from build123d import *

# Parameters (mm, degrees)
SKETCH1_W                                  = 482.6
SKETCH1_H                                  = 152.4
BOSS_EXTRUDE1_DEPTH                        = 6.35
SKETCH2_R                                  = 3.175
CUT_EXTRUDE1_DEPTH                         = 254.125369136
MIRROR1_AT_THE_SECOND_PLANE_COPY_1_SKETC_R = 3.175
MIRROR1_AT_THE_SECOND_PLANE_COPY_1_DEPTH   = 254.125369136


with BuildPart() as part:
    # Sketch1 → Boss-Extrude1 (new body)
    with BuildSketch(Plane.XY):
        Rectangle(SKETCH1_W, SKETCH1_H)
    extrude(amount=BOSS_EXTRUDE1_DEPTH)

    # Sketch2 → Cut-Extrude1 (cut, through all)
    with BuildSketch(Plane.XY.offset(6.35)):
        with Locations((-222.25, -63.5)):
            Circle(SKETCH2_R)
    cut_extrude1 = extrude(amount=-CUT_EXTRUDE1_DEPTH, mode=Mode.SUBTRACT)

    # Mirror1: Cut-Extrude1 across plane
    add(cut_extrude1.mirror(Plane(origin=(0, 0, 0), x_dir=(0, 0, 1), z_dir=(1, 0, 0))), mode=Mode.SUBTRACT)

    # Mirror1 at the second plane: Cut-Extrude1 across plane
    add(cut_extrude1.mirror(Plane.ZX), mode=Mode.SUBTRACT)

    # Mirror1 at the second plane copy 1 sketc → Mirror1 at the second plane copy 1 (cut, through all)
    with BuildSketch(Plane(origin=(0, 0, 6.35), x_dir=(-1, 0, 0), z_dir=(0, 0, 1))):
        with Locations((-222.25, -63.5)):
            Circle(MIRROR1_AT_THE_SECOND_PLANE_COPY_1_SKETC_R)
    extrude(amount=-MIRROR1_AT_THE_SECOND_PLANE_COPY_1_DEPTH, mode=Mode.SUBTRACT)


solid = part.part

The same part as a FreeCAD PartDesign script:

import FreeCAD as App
import Part
import Sketcher

V = App.Vector
Q = App.Units.Quantity


def add_polygon(sketch, points):
    """Adds a closed chain of lines whose ends are joined by coincident constraints."""
    first, n = sketch.GeometryCount, len(points)
    for a, b in zip(points, points[1:] + points[:1]):
        sketch.addGeometry(Part.LineSegment(App.Vector(*a, 0), App.Vector(*b, 0)), False)
    for i in range(n):
        sketch.addConstraint(Sketcher.Constraint("Coincident", first + i, 2, first + (i + 1) % n, 1))

doc = App.newDocument("Part")
body = doc.addObject("PartDesign::Body", "Body")

sketch1 = body.newObject("Sketcher::SketchObject", "Sketch")
sketch1.AttachmentSupport = (doc.getObject("XY_Plane"), [""])
sketch1.MapMode = "FlatFace"
add_polygon(sketch1, [(-241, 76), (-241, -76), (241, -76), (241, 76)])
sketch1.addConstraint(Sketcher.Constraint("Vertical", 0))
sketch1.addConstraint(Sketcher.Constraint("Horizontal", 1))
sketch1.addConstraint(Sketcher.Constraint("Vertical", 2))
sketch1.addConstraint(Sketcher.Constraint("Horizontal", 3))
sketch1.addConstraint(Sketcher.Constraint("Symmetric", 0, 2, 2, 2, -1, 1))
sketch1.addConstraint(Sketcher.Constraint("DistanceX", 1, 1, 1, 2, Q("19 in")))
sketch1.addConstraint(Sketcher.Constraint("DistanceY", 0, 2, 0, 1, Q("6 in")))
pad1 = body.newObject("PartDesign::Pad", "Pad")
pad1.Profile = sketch1
pad1.Length = Q("0.25 in")

sketch2 = body.newObject("Sketcher::SketchObject", "Sketch001")
sketch2.AttachmentSupport = (doc.getObject("XY_Plane"), [""])
sketch2.MapMode = "FlatFace"
sketch2.AttachmentOffset = App.Placement(V(0, 0, 0.25 * 25.4), App.Rotation())
sketch2.addGeometry(Part.Circle(V(-222.2, -63.5, 0), V(0, 0, 1), 3.2), False)
sketch2.addConstraint(Sketcher.Constraint("Diameter", 0, Q("0.25 in")))
sketch2.addConstraint(Sketcher.Constraint("DistanceY", 0, 3, -1, 1, Q("2.5 in")))
sketch2.addConstraint(Sketcher.Constraint("DistanceX", 0, 3, -1, 1, Q("8.75 in")))
pocket1 = body.newObject("PartDesign::Pocket", "Pocket")
pocket1.Profile = sketch2
pocket1.Type = "ThroughAll"
doc.recompute()

mirrored = body.newObject("PartDesign::Mirrored", "Mirrored")
mirrored.Originals = [pocket1]
mirrored.MirrorPlane = (doc.getObject("YZ_Plane"), [""])
body.Tip = mirrored
doc.recompute()

mirrored2 = body.newObject("PartDesign::Mirrored", "Mirrored001")
mirrored2.Originals = [pocket1]
mirrored2.MirrorPlane = (doc.getObject("XZ_Plane"), [""])
body.Tip = mirrored2

sketch3 = body.newObject("Sketcher::SketchObject", "Sketch002")
sketch3.AttachmentSupport = (doc.getObject("XY_Plane"), [""])
sketch3.MapMode = "FlatFace"
sketch3.AttachmentOffset = App.Placement(V(0, 0, 0.25 * 25.4), App.Rotation())
sketch3.addGeometry(Part.Circle(V(222.2, 63.5, 0), V(0, 0, 1), 3.2), False)
sketch3.addConstraint(Sketcher.Constraint("Diameter", 0, Q("0.25 in")))
sketch3.addConstraint(Sketcher.Constraint("DistanceY", -1, 1, 0, 3, Q("2.5 in")))
sketch3.addConstraint(Sketcher.Constraint("DistanceX", -1, 1, 0, 3, Q("8.75 in")))
pocket2 = body.newObject("PartDesign::Pocket", "Pocket001")
pocket2.Profile = sketch3
pocket2.Type = "ThroughAll"

doc.recompute()
